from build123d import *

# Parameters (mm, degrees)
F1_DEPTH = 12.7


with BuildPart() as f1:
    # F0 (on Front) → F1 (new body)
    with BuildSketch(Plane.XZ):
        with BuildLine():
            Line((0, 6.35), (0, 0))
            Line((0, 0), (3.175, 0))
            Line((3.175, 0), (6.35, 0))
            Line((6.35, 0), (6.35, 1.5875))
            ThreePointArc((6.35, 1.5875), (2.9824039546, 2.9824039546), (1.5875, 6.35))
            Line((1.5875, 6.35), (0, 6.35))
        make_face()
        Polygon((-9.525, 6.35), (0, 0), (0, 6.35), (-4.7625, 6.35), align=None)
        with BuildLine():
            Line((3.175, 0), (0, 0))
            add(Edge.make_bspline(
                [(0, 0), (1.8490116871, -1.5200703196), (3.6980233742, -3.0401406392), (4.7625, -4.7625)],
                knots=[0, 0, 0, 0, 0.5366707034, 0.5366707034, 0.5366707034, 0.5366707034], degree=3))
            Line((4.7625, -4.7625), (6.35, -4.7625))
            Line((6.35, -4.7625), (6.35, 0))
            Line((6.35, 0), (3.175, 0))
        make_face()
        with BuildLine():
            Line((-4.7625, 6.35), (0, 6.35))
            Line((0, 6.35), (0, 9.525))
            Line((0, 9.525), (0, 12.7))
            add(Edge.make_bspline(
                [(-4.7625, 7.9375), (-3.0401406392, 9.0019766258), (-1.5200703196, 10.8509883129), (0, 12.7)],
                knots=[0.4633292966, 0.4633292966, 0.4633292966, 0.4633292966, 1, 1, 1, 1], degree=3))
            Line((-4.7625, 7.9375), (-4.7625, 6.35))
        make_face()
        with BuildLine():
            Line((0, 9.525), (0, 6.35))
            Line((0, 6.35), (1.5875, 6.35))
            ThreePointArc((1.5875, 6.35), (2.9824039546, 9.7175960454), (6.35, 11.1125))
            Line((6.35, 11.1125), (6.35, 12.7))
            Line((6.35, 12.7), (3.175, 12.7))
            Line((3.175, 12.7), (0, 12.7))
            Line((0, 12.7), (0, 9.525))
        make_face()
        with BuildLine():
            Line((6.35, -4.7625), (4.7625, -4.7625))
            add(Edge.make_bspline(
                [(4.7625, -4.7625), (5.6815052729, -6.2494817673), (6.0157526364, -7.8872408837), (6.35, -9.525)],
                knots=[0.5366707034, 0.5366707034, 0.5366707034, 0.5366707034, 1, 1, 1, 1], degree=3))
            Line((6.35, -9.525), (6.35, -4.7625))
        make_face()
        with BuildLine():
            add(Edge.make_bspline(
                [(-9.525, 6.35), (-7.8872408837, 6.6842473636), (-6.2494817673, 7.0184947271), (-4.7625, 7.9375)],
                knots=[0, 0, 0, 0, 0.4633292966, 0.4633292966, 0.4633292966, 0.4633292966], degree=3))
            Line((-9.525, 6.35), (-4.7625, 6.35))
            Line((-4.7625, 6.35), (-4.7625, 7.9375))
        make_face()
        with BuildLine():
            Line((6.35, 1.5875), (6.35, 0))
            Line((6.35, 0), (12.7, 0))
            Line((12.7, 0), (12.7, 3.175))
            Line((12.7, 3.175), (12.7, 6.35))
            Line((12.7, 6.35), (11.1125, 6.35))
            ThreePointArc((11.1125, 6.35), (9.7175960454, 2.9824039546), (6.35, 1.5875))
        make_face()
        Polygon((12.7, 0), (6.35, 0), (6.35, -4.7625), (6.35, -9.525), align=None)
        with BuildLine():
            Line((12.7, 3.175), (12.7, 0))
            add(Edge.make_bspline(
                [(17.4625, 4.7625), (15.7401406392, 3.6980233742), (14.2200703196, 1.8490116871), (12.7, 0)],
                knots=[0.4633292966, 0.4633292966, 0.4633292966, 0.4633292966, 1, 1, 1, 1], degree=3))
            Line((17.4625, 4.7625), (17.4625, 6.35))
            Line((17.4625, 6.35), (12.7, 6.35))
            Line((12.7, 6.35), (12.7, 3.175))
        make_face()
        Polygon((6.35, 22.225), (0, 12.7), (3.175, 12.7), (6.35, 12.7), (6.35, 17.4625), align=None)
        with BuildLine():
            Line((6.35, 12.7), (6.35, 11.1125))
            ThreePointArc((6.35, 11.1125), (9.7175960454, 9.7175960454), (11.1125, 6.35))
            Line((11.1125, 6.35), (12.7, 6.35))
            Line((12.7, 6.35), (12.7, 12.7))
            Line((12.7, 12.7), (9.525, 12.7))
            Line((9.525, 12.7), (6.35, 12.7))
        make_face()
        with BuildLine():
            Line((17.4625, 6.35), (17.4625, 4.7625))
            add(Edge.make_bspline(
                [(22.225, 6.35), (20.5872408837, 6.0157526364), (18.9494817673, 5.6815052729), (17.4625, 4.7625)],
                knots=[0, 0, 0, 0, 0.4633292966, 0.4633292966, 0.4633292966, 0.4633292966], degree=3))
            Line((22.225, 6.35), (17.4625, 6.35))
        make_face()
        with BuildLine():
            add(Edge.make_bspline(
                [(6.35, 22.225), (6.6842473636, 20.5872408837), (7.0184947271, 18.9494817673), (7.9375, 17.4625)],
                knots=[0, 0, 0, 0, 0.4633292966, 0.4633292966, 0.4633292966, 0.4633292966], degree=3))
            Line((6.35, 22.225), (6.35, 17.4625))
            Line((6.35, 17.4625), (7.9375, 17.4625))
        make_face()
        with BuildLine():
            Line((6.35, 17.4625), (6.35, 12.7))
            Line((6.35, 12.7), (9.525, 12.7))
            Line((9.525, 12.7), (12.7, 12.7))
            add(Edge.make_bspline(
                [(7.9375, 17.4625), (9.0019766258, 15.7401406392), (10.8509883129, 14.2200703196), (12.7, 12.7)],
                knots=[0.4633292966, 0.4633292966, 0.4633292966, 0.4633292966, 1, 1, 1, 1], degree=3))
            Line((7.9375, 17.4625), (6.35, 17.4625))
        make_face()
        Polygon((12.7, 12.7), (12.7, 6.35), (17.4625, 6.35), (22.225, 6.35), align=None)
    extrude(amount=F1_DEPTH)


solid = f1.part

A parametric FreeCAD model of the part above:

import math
import FreeCAD as App
import Part
import Sketcher
from FreeCAD import Vector
Q = App.Units.Quantity

doc = App.newDocument("Part")
params = doc.addObject("Spreadsheet::Sheet", "Params")
for row, (alias, value) in enumerate([
    ("sketch1_radius", "0.1875 in"),
    ("pad1_length", "0.5 in"),
], start=1):
    params.set(f"A{row}", alias)
    params.set(f"B{row}", "=" + value)
    params.setAlias(f"B{row}", alias)

body = doc.addObject("PartDesign::Body", "Body")

# Sketch on XZ plane
sketch1 = body.newObject("Sketcher::SketchObject", "Sketch")
sketch1.AttachmentSupport = (doc.getObject("XZ_Plane"), [""])
sketch1.MapMode = "FlatFace"
sketch1.addGeometry(Part.BSplineCurve([Vector(6.35, 22.225, 0), Vector(6.684247, 20.587241, 0), Vector(7.018495, 18.949482, 0), Vector(7.9375, 17.4625, 0)], [4, 4], [0, 0.463329297], False, 3, [1, 1, 1, 1], False), False)
sketch1.addGeometry(Part.LineSegment(Vector(6.35, 22.225, 0), Vector(0, 12.7, 0)), False)
sketch1.addGeometry(Part.BSplineCurve([Vector(-4.7625, 7.9375, 0), Vector(-3.040141, 9.001977, 0), Vector(-1.52007, 10.850988, 0), Vector(0, 12.7, 0)], [4, 4], [0.463329297, 1], False, 3, [1, 1, 1, 1], False), False)
sketch1.addGeometry(Part.BSplineCurve([Vector(-9.525, 6.35, 0), Vector(-7.887241, 6.684247, 0), Vector(-6.249482, 7.018495, 0), Vector(-4.7625, 7.9375, 0)], [4, 4], [0, 0.463329297], False, 3, [1, 1, 1, 1], False), False)
sketch1.addGeometry(Part.LineSegment(Vector(-9.525, 6.35, 0), Vector(0, 0, 0)), False)
sketch1.addGeometry(Part.BSplineCurve([Vector(0, 0, 0), Vector(1.849012, -1.52007, 0), Vector(3.698023, -3.040141, 0), Vector(4.7625, -4.7625, 0)], [4, 4], [0, 0.536670703], False, 3, [1, 1, 1, 1], False), False)
sketch1.addGeometry(Part.BSplineCurve([Vector(4.7625, -4.7625, 0), Vector(5.681505, -6.249482, 0), Vector(6.015753, -7.887241, 0), Vector(6.35, -9.525, 0)], [4, 4], [0.536670703, 1], False, 3, [1, 1, 1, 1], False), False)
sketch1.addGeometry(Part.LineSegment(Vector(6.35, -9.525, 0), Vector(12.7, 0, 0)), False)
sketch1.addGeometry(Part.BSplineCurve([Vector(17.4625, 4.7625, 0), Vector(15.740141, 3.698023, 0), Vector(14.22007, 1.849012, 0), Vector(12.7, 0, 0)], [4, 4], [0.463329297, 1], False, 3, [1, 1, 1, 1], False), False)
sketch1.addGeometry(Part.BSplineCurve([Vector(22.225, 6.35, 0), Vector(20.587241, 6.015753, 0), Vector(18.949482, 5.681505, 0), Vector(17.4625, 4.7625, 0)], [4, 4], [0, 0.463329297], False, 3, [1, 1, 1, 1], False), False)
sketch1.addGeometry(Part.LineSegment(Vector(22.225, 6.35, 0), Vector(12.7, 12.7, 0)), False)
sketch1.addGeometry(Part.BSplineCurve([Vector(7.9375, 17.4625, 0), Vector(9.001977, 15.740141, 0), Vector(10.850988, 14.22007, 0), Vector(12.7, 12.7, 0)], [4, 4], [0.463329297, 1], False, 3, [1, 1, 1, 1], False), False)
sketch1.addGeometry(Part.ArcOfCircle(Part.Circle(Vector(6.35, 6.35, 0), Vector(0, 0, 1), 4.7625), math.radians(180), math.radians(270)), False)
sketch1.addGeometry(Part.ArcOfCircle(Part.Circle(Vector(6.35, 6.35, 0), Vector(0, 0, 1), 4.7625), math.radians(90), math.radians(180)), False)
sketch1.addGeometry(Part.ArcOfCircle(Part.Circle(Vector(6.35, 6.35, 0), Vector(0, 0, 1), 4.7625), math.radians(0), math.radians(90)), False)
sketch1.addGeometry(Part.ArcOfCircle(Part.Circle(Vector(6.35, 6.35, 0), Vector(0, 0, 1), 4.7625), math.radians(-90), math.radians(0)), False)
sketch1.addConstraint(Sketcher.Constraint("Block", 0))
sketch1.addConstraint(Sketcher.Constraint("Block", 2))
sketch1.addConstraint(Sketcher.Constraint("Block", 3))
sketch1.addConstraint(Sketcher.Constraint("Block", 5))
sketch1.addConstraint(Sketcher.Constraint("Block", 6))
sketch1.addConstraint(Sketcher.Constraint("Block", 8))
sketch1.addConstraint(Sketcher.Constraint("Block", 9))
sketch1.addConstraint(Sketcher.Constraint("Block", 11))
sketch1.addConstraint(Sketcher.Constraint("Coincident", 0, 1, 1, 1))
sketch1.addConstraint(Sketcher.Constraint("Coincident", 1, 2, 2, 2))
sketch1.addConstraint(Sketcher.Constraint("Coincident", 3, 1, 4, 1))
sketch1.addConstraint(Sketcher.Constraint("Coincident", 4, 2, 5, 1))
sketch1.addConstraint(Sketcher.Constraint("Coincident", 6, 2, 7, 1))
sketch1.addConstraint(Sketcher.Constraint("Coincident", 7, 2, 8, 2))
sketch1.addConstraint(Sketcher.Constraint("Coincident", 9, 1, 10, 1))
sketch1.addConstraint(Sketcher.Constraint("Coincident", 10, 2, 11, 2))
sketch1.addConstraint(Sketcher.Constraint("Tangent", 12, 1, 13, 2))
sketch1.addConstraint(Sketcher.Constraint("Tangent", 13, 1, 14, 2))
sketch1.addConstraint(Sketcher.Constraint("Tangent", 14, 1, 15, 2))
sketch1.addConstraint(Sketcher.Constraint("Tangent", 15, 1, 12, 2))
sketch1.addConstraint(Sketcher.Constraint("Equal", 12, 13))
sketch1.addConstraint(Sketcher.Constraint("Horizontal", 15, 3, 12, 1))
sketch1.addConstraint(Sketcher.Constraint("Horizontal", 12, 1, 14, 1))
sketch1.addConstraint(Sketcher.Constraint("Vertical", 15, 3, 13, 1))
sketch1.addConstraint(Sketcher.Constraint("Vertical", 13, 1, 15, 1))
sketch1.addConstraint(Sketcher.Constraint("Radius", 12, Q("0.1875 in")))
sketch1.addConstraint(Sketcher.Constraint("DistanceX", -1, 1, 12, 3, Q("0.25 in")))
sketch1.addConstraint(Sketcher.Constraint("DistanceY", -1, 1, 12, 3, Q("0.25 in")))
sketch1.setExpression("Constraints[25]", "Params.sketch1_radius")
pad1 = body.newObject("PartDesign::Pad", "Pad")
pad1.Profile = sketch1
pad1.setExpression("Length", "Params.pad1_length")

doc.recompute()
